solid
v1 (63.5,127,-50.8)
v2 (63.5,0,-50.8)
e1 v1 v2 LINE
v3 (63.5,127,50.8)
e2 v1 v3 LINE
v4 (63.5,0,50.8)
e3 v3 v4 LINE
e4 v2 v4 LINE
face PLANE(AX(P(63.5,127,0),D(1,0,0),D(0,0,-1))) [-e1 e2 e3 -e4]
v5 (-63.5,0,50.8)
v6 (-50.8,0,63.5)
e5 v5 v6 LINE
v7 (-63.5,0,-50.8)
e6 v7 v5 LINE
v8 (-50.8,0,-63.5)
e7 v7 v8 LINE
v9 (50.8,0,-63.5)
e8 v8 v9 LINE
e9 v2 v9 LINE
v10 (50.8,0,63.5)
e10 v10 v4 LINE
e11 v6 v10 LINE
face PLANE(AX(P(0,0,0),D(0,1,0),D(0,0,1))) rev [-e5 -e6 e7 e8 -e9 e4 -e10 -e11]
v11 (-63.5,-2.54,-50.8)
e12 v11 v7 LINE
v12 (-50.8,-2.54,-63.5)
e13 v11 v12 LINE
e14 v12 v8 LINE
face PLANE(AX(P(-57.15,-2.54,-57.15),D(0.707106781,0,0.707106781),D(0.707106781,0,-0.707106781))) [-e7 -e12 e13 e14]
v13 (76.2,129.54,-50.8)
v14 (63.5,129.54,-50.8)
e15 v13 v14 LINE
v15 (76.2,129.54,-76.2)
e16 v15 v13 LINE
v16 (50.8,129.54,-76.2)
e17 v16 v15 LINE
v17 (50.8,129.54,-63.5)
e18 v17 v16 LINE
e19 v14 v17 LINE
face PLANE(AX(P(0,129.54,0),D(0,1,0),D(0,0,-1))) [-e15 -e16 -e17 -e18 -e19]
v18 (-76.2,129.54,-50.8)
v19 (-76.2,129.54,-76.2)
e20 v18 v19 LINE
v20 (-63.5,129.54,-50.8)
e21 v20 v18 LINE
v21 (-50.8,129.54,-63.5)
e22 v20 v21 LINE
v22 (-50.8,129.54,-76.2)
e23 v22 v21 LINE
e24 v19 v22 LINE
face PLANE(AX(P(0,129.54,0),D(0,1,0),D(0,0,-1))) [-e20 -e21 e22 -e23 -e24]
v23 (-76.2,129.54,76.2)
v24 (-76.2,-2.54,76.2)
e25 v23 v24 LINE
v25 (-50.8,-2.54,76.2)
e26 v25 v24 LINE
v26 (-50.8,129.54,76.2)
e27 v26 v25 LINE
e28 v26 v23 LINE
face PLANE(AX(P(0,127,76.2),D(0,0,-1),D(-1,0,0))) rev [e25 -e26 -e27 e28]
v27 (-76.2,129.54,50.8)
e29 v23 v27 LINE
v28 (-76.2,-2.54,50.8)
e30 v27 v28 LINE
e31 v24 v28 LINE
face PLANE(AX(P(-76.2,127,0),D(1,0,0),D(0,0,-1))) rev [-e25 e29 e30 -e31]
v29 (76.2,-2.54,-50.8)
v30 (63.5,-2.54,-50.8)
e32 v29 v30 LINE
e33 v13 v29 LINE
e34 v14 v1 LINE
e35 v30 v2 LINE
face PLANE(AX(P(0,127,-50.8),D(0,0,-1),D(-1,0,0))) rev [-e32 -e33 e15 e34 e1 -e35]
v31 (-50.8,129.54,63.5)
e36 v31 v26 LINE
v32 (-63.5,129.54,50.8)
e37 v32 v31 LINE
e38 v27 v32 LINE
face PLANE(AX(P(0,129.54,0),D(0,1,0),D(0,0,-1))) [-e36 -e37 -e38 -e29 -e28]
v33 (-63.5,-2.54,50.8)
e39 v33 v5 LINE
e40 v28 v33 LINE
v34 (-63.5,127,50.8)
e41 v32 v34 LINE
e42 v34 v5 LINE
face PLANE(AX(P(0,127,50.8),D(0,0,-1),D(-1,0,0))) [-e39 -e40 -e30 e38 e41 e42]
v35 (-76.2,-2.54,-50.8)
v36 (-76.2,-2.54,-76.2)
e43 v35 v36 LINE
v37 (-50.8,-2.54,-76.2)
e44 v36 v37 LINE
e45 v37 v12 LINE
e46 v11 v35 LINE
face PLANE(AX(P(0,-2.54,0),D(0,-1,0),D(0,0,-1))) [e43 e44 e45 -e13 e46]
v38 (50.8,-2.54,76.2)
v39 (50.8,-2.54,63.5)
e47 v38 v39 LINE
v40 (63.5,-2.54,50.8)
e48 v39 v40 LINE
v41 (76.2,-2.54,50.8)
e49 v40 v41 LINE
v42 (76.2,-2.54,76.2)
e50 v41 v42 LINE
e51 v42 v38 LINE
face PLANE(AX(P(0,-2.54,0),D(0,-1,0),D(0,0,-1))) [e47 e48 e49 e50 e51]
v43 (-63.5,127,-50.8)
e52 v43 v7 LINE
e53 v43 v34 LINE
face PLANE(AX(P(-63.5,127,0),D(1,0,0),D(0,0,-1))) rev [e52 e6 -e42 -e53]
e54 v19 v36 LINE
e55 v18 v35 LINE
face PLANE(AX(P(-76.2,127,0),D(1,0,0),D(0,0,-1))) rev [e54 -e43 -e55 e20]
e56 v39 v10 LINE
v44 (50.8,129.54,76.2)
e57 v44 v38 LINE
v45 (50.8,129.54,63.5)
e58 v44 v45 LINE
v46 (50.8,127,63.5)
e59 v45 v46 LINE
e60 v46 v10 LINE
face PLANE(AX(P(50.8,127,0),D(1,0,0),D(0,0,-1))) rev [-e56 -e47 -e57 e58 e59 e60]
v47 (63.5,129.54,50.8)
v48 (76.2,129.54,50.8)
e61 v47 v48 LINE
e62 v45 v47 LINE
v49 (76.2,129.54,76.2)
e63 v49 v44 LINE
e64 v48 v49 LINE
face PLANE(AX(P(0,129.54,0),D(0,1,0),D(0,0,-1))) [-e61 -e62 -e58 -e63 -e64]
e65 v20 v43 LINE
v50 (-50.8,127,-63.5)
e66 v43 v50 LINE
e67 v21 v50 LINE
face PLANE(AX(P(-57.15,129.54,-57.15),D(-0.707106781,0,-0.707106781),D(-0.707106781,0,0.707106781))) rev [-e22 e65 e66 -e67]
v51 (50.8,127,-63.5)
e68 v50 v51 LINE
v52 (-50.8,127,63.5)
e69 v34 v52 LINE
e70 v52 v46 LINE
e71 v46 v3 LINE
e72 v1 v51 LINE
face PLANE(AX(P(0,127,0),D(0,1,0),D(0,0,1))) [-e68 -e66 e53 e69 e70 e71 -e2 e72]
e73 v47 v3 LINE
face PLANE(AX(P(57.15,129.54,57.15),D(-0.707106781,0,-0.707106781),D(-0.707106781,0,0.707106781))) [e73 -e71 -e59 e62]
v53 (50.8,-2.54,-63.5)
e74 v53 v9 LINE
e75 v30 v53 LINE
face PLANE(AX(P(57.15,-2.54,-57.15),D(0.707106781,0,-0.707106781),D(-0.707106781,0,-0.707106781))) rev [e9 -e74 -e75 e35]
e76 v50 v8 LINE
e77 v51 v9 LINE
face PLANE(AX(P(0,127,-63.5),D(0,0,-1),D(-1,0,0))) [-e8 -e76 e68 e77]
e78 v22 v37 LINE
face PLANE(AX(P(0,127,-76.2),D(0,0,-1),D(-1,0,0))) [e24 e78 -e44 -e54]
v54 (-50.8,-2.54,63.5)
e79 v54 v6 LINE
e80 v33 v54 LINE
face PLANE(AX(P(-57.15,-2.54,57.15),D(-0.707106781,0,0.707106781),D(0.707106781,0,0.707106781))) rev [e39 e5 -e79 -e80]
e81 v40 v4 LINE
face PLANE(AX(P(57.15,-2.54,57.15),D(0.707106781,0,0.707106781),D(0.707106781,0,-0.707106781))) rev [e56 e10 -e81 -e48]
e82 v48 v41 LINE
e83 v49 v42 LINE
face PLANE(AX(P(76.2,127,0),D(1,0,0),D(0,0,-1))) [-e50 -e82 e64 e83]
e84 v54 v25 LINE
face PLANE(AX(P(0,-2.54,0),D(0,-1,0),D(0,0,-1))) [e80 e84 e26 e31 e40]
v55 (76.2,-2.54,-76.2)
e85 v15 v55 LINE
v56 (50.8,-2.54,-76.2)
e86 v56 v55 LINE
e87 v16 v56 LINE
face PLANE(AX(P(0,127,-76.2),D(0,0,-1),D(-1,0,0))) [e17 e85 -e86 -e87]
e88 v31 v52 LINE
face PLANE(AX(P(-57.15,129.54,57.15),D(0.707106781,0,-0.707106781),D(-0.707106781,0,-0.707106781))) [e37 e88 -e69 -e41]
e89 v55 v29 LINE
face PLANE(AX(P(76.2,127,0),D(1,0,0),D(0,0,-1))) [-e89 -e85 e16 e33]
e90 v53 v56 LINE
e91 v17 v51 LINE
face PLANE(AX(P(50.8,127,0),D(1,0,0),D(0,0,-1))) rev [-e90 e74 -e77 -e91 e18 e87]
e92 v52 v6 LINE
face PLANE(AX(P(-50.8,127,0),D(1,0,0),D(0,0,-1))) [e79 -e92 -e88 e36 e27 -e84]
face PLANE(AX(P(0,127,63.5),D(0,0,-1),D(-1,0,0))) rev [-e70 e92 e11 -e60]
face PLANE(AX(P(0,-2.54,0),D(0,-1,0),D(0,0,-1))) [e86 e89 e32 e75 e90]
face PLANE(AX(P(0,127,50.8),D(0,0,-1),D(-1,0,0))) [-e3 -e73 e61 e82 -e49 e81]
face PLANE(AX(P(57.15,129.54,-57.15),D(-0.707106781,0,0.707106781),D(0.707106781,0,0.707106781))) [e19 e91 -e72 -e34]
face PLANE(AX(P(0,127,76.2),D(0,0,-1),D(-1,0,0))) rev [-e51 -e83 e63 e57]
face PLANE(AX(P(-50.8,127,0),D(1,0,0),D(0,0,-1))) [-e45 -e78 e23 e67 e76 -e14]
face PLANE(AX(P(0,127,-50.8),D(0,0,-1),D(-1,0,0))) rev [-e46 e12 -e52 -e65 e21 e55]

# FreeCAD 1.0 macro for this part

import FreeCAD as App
import Part
import Sketcher

V = App.Vector
Q = App.Units.Quantity

doc = App.newDocument("Part")
body = doc.addObject("PartDesign::Body", "Body")

# Sketch on XZ plane
sketch1 = body.newObject("Sketcher::SketchObject", "Sketch")
sketch1.AttachmentSupport = (doc.getObject("XZ_Plane"), [""])
sketch1.MapMode = "FlatFace"
sketch1.addGeometry(Part.LineSegment(V(-63.5, -50.8, 0), V(-63.5, 50.8, 0)), False)
sketch1.addGeometry(Part.LineSegment(V(-63.5, 50.8, 0), V(-76.2, 50.8, 0)), False)
sketch1.addGeometry(Part.LineSegment(V(-76.2, 50.8, 0), V(-76.2, 76.2, 0)), False)
sketch1.addGeometry(Part.LineSegment(V(-76.2, 76.2, 0), V(-50.8, 76.2, 0)), False)
sketch1.addGeometry(Part.LineSegment(V(-50.8, 76.2, 0), V(-50.8, 63.5, 0)), False)
sketch1.addGeometry(Part.LineSegment(V(-50.8, 63.5, 0), V(50.8, 63.5, 0)), False)
sketch1.addGeometry(Part.LineSegment(V(50.8, 63.5, 0), V(50.8, 76.2, 0)), False)
sketch1.addGeometry(Part.LineSegment(V(50.8, 76.2, 0), V(76.2, 76.2, 0)), False)
sketch1.addGeometry(Part.LineSegment(V(76.2, 76.2, 0), V(76.2, 50.8, 0)), False)
sketch1.addGeometry(Part.LineSegment(V(76.2, 50.8, 0), V(63.5, 50.8, 0)), False)
sketch1.addGeometry(Part.LineSegment(V(63.5, 50.8, 0), V(63.5, -50.8, 0)), False)
sketch1.addGeometry(Part.LineSegment(V(63.5, -50.8, 0), V(76.2, -50.8, 0)), False)
sketch1.addGeometry(Part.LineSegment(V(76.2, -50.8, 0), V(76.2, -76.2, 0)), False)
sketch1.addGeometry(Part.LineSegment(V(76.2, -76.2, 0), V(50.8, -76.2, 0)), False)
sketch1.addGeometry(Part.LineSegment(V(50.8, -76.2, 0), V(50.8, -63.5, 0)), False)
sketch1.addGeometry(Part.LineSegment(V(50.8, -63.5, 0), V(-50.8, -63.5, 0)), False)
sketch1.addGeometry(Part.LineSegment(V(-50.8, -63.5, 0), V(-50.8, -76.2, 0)), False)
sketch1.addGeometry(Part.LineSegment(V(-50.8, -76.2, 0), V(-76.2, -76.2, 0)), False)
sketch1.addGeometry(Part.LineSegment(V(-76.2, -76.2, 0), V(-76.2, -50.8, 0)), False)
sketch1.addGeometry(Part.LineSegment(V(-76.2, -50.8, 0), V(-63.5, -50.8, 0)), False)
sketch1.addConstraint(Sketcher.Constraint("Coincident", 0, 2, 1, 1))
sketch1.addConstraint(Sketcher.Constraint("Coincident", 1, 2, 2, 1))
sketch1.addConstraint(Sketcher.Constraint("Coincident", 2, 2, 3, 1))
sketch1.addConstraint(Sketcher.Constraint("Coincident", 3, 2, 4, 1))
sketch1.addConstraint(Sketcher.Constraint("Coincident", 4, 2, 5, 1))
sketch1.addConstraint(Sketcher.Constraint("Coincident", 5, 2, 6, 1))
sketch1.addConstraint(Sketcher.Constraint("Coincident", 6, 2, 7, 1))
sketch1.addConstraint(Sketcher.Constraint("Coincident", 7, 2, 8, 1))
sketch1.addConstraint(Sketcher.Constraint("Coincident", 8, 2, 9, 1))
sketch1.addConstraint(Sketcher.Constraint("Coincident", 9, 2, 10, 1))
sketch1.addConstraint(Sketcher.Constraint("Coincident", 10, 2, 11, 1))
sketch1.addConstraint(Sketcher.Constraint("Coincident", 11, 2, 12, 1))
sketch1.addConstraint(Sketcher.Constraint("Coincident", 12, 2, 13, 1))
sketch1.addConstraint(Sketcher.Constraint("Coincident", 13, 2, 14, 1))
sketch1.addConstraint(Sketcher.Constraint("Coincident", 14, 2, 15, 1))
sketch1.addConstraint(Sketcher.Constraint("Coincident", 15, 2, 16, 1))
sketch1.addConstraint(Sketcher.Constraint("Coincident", 16, 2, 17, 1))
sketch1.addConstraint(Sketcher.Constraint("Coincident", 17, 2, 18, 1))
sketch1.addConstraint(Sketcher.Constraint("Coincident", 18, 2, 19, 1))
sketch1.addConstraint(Sketcher.Constraint("Coincident", 19, 2, 0, 1))
sketch1.addConstraint(Sketcher.Constraint("Vertical", 0))
sketch1.addConstraint(Sketcher.Constraint("Horizontal", 1))
sketch1.addConstraint(Sketcher.Constraint("Vertical", 2))
sketch1.addConstraint(Sketcher.Constraint("Horizontal", 3))
sketch1.addConstraint(Sketcher.Constraint("Vertical", 4))
sketch1.addConstraint(Sketcher.Constraint("Horizontal", 5))
sketch1.addConstraint(Sketcher.Constraint("Vertical", 6))
sketch1.addConstraint(Sketcher.Constraint("Horizontal", 7))
sketch1.addConstraint(Sketcher.Constraint("Vertical", 8))
sketch1.addConstraint(Sketcher.Constraint("Horizontal", 9))
sketch1.addConstraint(Sketcher.Constraint("Vertical", 10))
sketch1.addConstraint(Sketcher.Constraint("Horizontal", 11))
sketch1.addConstraint(Sketcher.Constraint("Vertical", 12))
sketch1.addConstraint(Sketcher.Constraint("Horizontal", 13))
sketch1.addConstraint(Sketcher.Constraint("Vertical", 14))
sketch1.addConstraint(Sketcher.Constraint("Horizontal", 15))
sketch1.addConstraint(Sketcher.Constraint("Vertical", 16))
sketch1.addConstraint(Sketcher.Constraint("Horizontal", 17))
sketch1.addConstraint(Sketcher.Constraint("Vertical", 18))
sketch1.addConstraint(Sketcher.Constraint("Horizontal", 19))
sketch1.addConstraint(Sketcher.Constraint("Symmetric", 0, 2, 10, 2, -1, 1))
sketch1.addConstraint(Sketcher.Constraint("Symmetric", 2, 2, 12, 2, -1, 1))
sketch1.addConstraint(Sketcher.Constraint("Symmetric", 4, 2, 14, 2, -1, 1))
sketch1.addConstraint(Sketcher.Constraint("Symmetric", 6, 2, 16, 2, -1, 1))
sketch1.addConstraint(Sketcher.Constraint("Symmetric", 8, 2, 18, 2, -1, 1))
sketch1.addConstraint(Sketcher.Constraint("Symmetric", 3, 2, 6, 2, -2))
sketch1.addConstraint(Sketcher.Constraint("Symmetric", 1, 2, 8, 2, -2))
sketch1.addConstraint(Sketcher.Constraint("Equal", 15, 0))
sketch1.addConstraint(Sketcher.Constraint("Equal", 17, 2))
sketch1.addConstraint(Sketcher.Constraint("Equal", 19, 4))
sketch1.addConstraint(Sketcher.Constraint("DistanceX", 3, 1, 3, 2, Q("1 in")))
sketch1.addConstraint(Sketcher.Constraint("DistanceX", 5, 1, 5, 2, Q("4 in")))
sketch1.addConstraint(Sketcher.Constraint("DistanceX", 1, 2, 1, 1, Q("0.5 in")))
pad1 = body.newObject("PartDesign::Pad", "Pad")
pad1.Profile = sketch1
pad1.Length = Q("5 in")
pad1.Reversed = True

# Sketch on XZ plane
sketch2 = body.newObject("Sketcher::SketchObject", "Sketch001")
sketch2.AttachmentSupport = (doc.getObject("XZ_Plane"), [""])
sketch2.MapMode = "FlatFace"
sketch2.addGeometry(Part.LineSegment(V(50.8, 63.5, 0), V(63.5, 50.8, 0)), False)
sketch2.addGeometry(Part.LineSegment(V(63.5, 50.8, 0), V(76.2, 50.8, 0)), False)
sketch2.addGeometry(Part.LineSegment(V(76.2, 50.8, 0), V(76.2, 76.2, 0)), False)
sketch2.addGeometry(Part.LineSegment(V(76.2, 76.2, 0), V(50.8, 76.2, 0)), False)
sketch2.addGeometry(Part.LineSegment(V(50.8, 76.2, 0), V(50.8, 63.5, 0)), False)
sketch2.addGeometry(Part.LineSegment(V(63.5, -50.8, 0), V(50.8, -63.5, 0)), False)
sketch2.addGeometry(Part.LineSegment(V(50.8, -63.5, 0), V(50.8, -76.2, 0)), False)
sketch2.addGeometry(Part.LineSegment(V(50.8, -76.2, 0), V(76.2, -76.2, 0)), False)
sketch2.addGeometry(Part.LineSegment(V(76.2, -76.2, 0), V(76.2, -50.8, 0)), False)
sketch2.addGeometry(Part.LineSegment(V(76.2, -50.8, 0), V(63.5, -50.8, 0)), False)
sketch2.addGeometry(Part.LineSegment(V(-50.8, -63.5, 0), V(-63.5, -50.8, 0)), False)
sketch2.addGeometry(Part.LineSegment(V(-63.5, -50.8, 0), V(-76.2, -50.8, 0)), False)
sketch2.addGeometry(Part.LineSegment(V(-76.2, -50.8, 0), V(-76.2, -76.2, 0)), False)
sketch2.addGeometry(Part.LineSegment(V(-76.2, -76.2, 0), V(-50.8, -76.2, 0)), False)
sketch2.addGeometry(Part.LineSegment(V(-50.8, -76.2, 0), V(-50.8, -63.5, 0)), False)
sketch2.addGeometry(Part.LineSegment(V(-63.5, 50.8, 0), V(-50.8, 63.5, 0)), False)
sketch2.addGeometry(Part.LineSegment(V(-50.8, 63.5, 0), V(-50.8, 76.2, 0)), False)
sketch2.addGeometry(Part.LineSegment(V(-50.8, 76.2, 0), V(-76.2, 76.2, 0)), False)
sketch2.addGeometry(Part.LineSegment(V(-76.2, 76.2, 0), V(-76.2, 50.8, 0)), False)
sketch2.addGeometry(Part.LineSegment(V(-76.2, 50.8, 0), V(-63.5, 50.8, 0)), False)
sketch2.addConstraint(Sketcher.Constraint("Coincident", 0, 2, 1, 1))
sketch2.addConstraint(Sketcher.Constraint("Coincident", 1, 2, 2, 1))
sketch2.addConstraint(Sketcher.Constraint("Coincident", 2, 2, 3, 1))
sketch2.addConstraint(Sketcher.Constraint("Coincident", 3, 2, 4, 1))
sketch2.addConstraint(Sketcher.Constraint("Coincident", 4, 2, 0, 1))
sketch2.addConstraint(Sketcher.Constraint("Coincident", 5, 2, 6, 1))
sketch2.addConstraint(Sketcher.Constraint("Coincident", 6, 2, 7, 1))
sketch2.addConstraint(Sketcher.Constraint("Coincident", 7, 2, 8, 1))
sketch2.addConstraint(Sketcher.Constraint("Coincident", 8, 2, 9, 1))
sketch2.addConstraint(Sketcher.Constraint("Coincident", 9, 2, 5, 1))
sketch2.addConstraint(Sketcher.Constraint("Coincident", 10, 2, 11, 1))
sketch2.addConstraint(Sketcher.Constraint("Coincident", 11, 2, 12, 1))
sketch2.addConstraint(Sketcher.Constraint("Coincident", 12, 2, 13, 1))
sketch2.addConstraint(Sketcher.Constraint("Coincident", 13, 2, 14, 1))
sketch2.addConstraint(Sketcher.Constraint("Coincident", 14, 2, 10, 1))
sketch2.addConstraint(Sketcher.Constraint("Coincident", 15, 2, 16, 1))
sketch2.addConstraint(Sketcher.Constraint("Coincident", 16, 2, 17, 1))
sketch2.addConstraint(Sketcher.Constraint("Coincident", 17, 2, 18, 1))
sketch2.addConstraint(Sketcher.Constraint("Coincident", 18, 2, 19, 1))
sketch2.addConstraint(Sketcher.Constraint("Coincident", 19, 2, 15, 1))
sketch2.addConstraint(Sketcher.Constraint("Horizontal", 1))
sketch2.addConstraint(Sketcher.Constraint("Vertical", 2))
sketch2.addConstraint(Sketcher.Constraint("Horizontal", 3))
sketch2.addConstraint(Sketcher.Constraint("Vertical", 4))
sketch2.addConstraint(Sketcher.Constraint("Vertical", 6))
sketch2.addConstraint(Sketcher.Constraint("Horizontal", 7))
sketch2.addConstraint(Sketcher.Constraint("Vertical", 8))
sketch2.addConstraint(Sketcher.Constraint("Horizontal", 9))
sketch2.addConstraint(Sketcher.Constraint("Horizontal", 11))
sketch2.addConstraint(Sketcher.Constraint("Vertical", 12))
sketch2.addConstraint(Sketcher.Constraint("Horizontal", 13))
sketch2.addConstraint(Sketcher.Constraint("Vertical", 14))
sketch2.addConstraint(Sketcher.Constraint("Vertical", 16))
sketch2.addConstraint(Sketcher.Constraint("Horizontal", 17))
sketch2.addConstraint(Sketcher.Constraint("Vertical", 18))
sketch2.addConstraint(Sketcher.Constraint("Horizontal", 19))
sketch2.addConstraint(Sketcher.Constraint("Symmetric", 0, 2, 10, 2, -1, 1))
sketch2.addConstraint(Sketcher.Constraint("Symmetric", 2, 2, 12, 2, -1, 1))
sketch2.addConstraint(Sketcher.Constraint("Symmetric", 4, 2, 14, 2, -1, 1))
sketch2.addConstraint(Sketcher.Constraint("Symmetric", 5, 2, 15, 2, -1, 1))
sketch2.addConstraint(Sketcher.Constraint("Symmetric", 7, 2, 17, 2, -1, 1))
sketch2.addConstraint(Sketcher.Constraint("Symmetric", 9, 2, 19, 2, -1, 1))
sketch2.addConstraint(Sketcher.Constraint("Symmetric", 9, 2, 10, 2, -2))
sketch2.addConstraint(Sketcher.Constraint("Symmetric", 7, 2, 12, 2, -2))
sketch2.addConstraint(Sketcher.Constraint("Symmetric", 5, 2, 14, 2, -2))
sketch2.addConstraint(Sketcher.Constraint("Perpendicular", 0, 5))
sketch2.addConstraint(Sketcher.Constraint("Equal", 17, 2))
sketch2.addConstraint(Sketcher.Constraint("DistanceX", 3, 2, 3, 1, Q("1 in")))
sketch2.addConstraint(Sketcher.Constraint("DistanceX", 1, 1, 1, 2, Q("0.5 in")))
sketch2.addConstraint(Sketcher.Constraint("DistanceY", -1, 1, 0, 2, Q("2 in")))
sketch2.addConstraint(Sketcher.Constraint("DistanceX", -1, 1, 1, 2, Q("3 in")))
pad2 = body.newObject("PartDesign::Pad", "Pad001")
pad2.Profile = sketch2
pad2.Length = Q("0.1 in")
doc.recompute()

datumplane = body.newObject("PartDesign::Plane", "DatumPlane")
datumplane.AttachmentSupport = (doc.getObject("XZ_Plane"), [""])
datumplane.MapMode = "FlatFace"
datumplane.AttachmentOffset = App.Placement(V(0, 0, -2.5 * 25.4), App.Rotation())
mirrored = body.newObject("PartDesign::Mirrored", "Mirrored")
mirrored.Originals = [pad2]
mirrored.MirrorPlane = (datumplane, [""])
body.Tip = mirrored

doc.recompute()
